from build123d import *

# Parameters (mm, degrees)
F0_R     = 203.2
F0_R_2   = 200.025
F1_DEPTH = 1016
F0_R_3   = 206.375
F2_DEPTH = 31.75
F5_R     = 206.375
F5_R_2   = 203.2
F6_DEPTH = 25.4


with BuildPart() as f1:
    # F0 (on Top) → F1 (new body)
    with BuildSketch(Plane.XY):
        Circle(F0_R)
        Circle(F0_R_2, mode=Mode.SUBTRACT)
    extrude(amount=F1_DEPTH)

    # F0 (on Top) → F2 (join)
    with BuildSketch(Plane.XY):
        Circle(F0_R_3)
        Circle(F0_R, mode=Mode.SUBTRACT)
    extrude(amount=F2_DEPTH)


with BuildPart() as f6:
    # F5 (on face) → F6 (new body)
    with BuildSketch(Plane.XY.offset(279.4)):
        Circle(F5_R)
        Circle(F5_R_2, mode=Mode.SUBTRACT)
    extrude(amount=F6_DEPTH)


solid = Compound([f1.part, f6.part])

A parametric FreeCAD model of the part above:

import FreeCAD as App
import Part
import Sketcher

V = App.Vector
Q = App.Units.Quantity

doc = App.newDocument("Part")
body = doc.addObject("PartDesign::Body", "Body")

sketch1 = body.newObject("Sketcher::SketchObject", "Sketch")
sketch1.AttachmentSupport = (doc.getObject("XY_Plane"), [""])
sketch1.MapMode = "FlatFace"
sketch1.addGeometry(Part.Circle(V(0, 0, 0), V(0, 0, 1), 203), False)
sketch1.addGeometry(Part.Circle(V(0, 0, 0), V(0, 0, 1), 200), False)
sketch1.addConstraint(Sketcher.Constraint("Coincident", 0, 3, -1, 1))
sketch1.addConstraint(Sketcher.Constraint("Coincident", 1, 3, -1, 1))
sketch1.addConstraint(Sketcher.Constraint("Diameter", 0, Q("16 in")))
sketch1.addConstraint(Sketcher.Constraint("Diameter", 1, Q("15.75 in")))
pad1 = body.newObject("PartDesign::Pad", "Pad")
pad1.Profile = sketch1
pad1.Length = Q("40 in")

sketch2 = body.newObject("Sketcher::SketchObject", "Sketch001")
sketch2.AttachmentSupport = (doc.getObject("XY_Plane"), [""])
sketch2.MapMode = "FlatFace"
sketch2.addGeometry(Part.Circle(V(0, 0, 0), V(0, 0, 1), 206), False)
sketch2.addGeometry(Part.Circle(V(0, 0, 0), V(0, 0, 1), 203), False)
sketch2.addConstraint(Sketcher.Constraint("Coincident", 0, 3, -1, 1))
sketch2.addConstraint(Sketcher.Constraint("Coincident", 1, 3, -1, 1))
sketch2.addConstraint(Sketcher.Constraint("Diameter", 1, Q("16 in")))
sketch2.addConstraint(Sketcher.Constraint("Diameter", 0, Q("16.25 in")))
pad2 = body.newObject("PartDesign::Pad", "Pad001")
pad2.Profile = sketch2
pad2.Length = Q("1.25 in")
body2 = doc.addObject("PartDesign::Body", "Body001")

sketch3 = body2.newObject("Sketcher::SketchObject", "Sketch002")
sketch3.AttachmentSupport = (doc.getObject("XY_Plane001"), [""])
sketch3.MapMode = "FlatFace"
sketch3.AttachmentOffset = App.Placement(V(0, 0, 11 * 25.4), App.Rotation())
sketch3.addGeometry(Part.Circle(V(0, 0, 0), V(0, 0, 1), 206), False)
sketch3.addGeometry(Part.Circle(V(0, 0, 0), V(0, 0, 1), 203), False)
sketch3.addConstraint(Sketcher.Constraint("Coincident", 0, 3, -1, 1))
sketch3.addConstraint(Sketcher.Constraint("Coincident", 1, 3, -1, 1))
sketch3.addConstraint(Sketcher.Constraint("Diameter", 1, Q("16 in")))
sketch3.addConstraint(Sketcher.Constraint("Diameter", 0, Q("16.25 in")))
pad3 = body2.newObject("PartDesign::Pad", "Pad002")
pad3.Profile = sketch3
pad3.Length = Q("1 in")

doc.recompute()
